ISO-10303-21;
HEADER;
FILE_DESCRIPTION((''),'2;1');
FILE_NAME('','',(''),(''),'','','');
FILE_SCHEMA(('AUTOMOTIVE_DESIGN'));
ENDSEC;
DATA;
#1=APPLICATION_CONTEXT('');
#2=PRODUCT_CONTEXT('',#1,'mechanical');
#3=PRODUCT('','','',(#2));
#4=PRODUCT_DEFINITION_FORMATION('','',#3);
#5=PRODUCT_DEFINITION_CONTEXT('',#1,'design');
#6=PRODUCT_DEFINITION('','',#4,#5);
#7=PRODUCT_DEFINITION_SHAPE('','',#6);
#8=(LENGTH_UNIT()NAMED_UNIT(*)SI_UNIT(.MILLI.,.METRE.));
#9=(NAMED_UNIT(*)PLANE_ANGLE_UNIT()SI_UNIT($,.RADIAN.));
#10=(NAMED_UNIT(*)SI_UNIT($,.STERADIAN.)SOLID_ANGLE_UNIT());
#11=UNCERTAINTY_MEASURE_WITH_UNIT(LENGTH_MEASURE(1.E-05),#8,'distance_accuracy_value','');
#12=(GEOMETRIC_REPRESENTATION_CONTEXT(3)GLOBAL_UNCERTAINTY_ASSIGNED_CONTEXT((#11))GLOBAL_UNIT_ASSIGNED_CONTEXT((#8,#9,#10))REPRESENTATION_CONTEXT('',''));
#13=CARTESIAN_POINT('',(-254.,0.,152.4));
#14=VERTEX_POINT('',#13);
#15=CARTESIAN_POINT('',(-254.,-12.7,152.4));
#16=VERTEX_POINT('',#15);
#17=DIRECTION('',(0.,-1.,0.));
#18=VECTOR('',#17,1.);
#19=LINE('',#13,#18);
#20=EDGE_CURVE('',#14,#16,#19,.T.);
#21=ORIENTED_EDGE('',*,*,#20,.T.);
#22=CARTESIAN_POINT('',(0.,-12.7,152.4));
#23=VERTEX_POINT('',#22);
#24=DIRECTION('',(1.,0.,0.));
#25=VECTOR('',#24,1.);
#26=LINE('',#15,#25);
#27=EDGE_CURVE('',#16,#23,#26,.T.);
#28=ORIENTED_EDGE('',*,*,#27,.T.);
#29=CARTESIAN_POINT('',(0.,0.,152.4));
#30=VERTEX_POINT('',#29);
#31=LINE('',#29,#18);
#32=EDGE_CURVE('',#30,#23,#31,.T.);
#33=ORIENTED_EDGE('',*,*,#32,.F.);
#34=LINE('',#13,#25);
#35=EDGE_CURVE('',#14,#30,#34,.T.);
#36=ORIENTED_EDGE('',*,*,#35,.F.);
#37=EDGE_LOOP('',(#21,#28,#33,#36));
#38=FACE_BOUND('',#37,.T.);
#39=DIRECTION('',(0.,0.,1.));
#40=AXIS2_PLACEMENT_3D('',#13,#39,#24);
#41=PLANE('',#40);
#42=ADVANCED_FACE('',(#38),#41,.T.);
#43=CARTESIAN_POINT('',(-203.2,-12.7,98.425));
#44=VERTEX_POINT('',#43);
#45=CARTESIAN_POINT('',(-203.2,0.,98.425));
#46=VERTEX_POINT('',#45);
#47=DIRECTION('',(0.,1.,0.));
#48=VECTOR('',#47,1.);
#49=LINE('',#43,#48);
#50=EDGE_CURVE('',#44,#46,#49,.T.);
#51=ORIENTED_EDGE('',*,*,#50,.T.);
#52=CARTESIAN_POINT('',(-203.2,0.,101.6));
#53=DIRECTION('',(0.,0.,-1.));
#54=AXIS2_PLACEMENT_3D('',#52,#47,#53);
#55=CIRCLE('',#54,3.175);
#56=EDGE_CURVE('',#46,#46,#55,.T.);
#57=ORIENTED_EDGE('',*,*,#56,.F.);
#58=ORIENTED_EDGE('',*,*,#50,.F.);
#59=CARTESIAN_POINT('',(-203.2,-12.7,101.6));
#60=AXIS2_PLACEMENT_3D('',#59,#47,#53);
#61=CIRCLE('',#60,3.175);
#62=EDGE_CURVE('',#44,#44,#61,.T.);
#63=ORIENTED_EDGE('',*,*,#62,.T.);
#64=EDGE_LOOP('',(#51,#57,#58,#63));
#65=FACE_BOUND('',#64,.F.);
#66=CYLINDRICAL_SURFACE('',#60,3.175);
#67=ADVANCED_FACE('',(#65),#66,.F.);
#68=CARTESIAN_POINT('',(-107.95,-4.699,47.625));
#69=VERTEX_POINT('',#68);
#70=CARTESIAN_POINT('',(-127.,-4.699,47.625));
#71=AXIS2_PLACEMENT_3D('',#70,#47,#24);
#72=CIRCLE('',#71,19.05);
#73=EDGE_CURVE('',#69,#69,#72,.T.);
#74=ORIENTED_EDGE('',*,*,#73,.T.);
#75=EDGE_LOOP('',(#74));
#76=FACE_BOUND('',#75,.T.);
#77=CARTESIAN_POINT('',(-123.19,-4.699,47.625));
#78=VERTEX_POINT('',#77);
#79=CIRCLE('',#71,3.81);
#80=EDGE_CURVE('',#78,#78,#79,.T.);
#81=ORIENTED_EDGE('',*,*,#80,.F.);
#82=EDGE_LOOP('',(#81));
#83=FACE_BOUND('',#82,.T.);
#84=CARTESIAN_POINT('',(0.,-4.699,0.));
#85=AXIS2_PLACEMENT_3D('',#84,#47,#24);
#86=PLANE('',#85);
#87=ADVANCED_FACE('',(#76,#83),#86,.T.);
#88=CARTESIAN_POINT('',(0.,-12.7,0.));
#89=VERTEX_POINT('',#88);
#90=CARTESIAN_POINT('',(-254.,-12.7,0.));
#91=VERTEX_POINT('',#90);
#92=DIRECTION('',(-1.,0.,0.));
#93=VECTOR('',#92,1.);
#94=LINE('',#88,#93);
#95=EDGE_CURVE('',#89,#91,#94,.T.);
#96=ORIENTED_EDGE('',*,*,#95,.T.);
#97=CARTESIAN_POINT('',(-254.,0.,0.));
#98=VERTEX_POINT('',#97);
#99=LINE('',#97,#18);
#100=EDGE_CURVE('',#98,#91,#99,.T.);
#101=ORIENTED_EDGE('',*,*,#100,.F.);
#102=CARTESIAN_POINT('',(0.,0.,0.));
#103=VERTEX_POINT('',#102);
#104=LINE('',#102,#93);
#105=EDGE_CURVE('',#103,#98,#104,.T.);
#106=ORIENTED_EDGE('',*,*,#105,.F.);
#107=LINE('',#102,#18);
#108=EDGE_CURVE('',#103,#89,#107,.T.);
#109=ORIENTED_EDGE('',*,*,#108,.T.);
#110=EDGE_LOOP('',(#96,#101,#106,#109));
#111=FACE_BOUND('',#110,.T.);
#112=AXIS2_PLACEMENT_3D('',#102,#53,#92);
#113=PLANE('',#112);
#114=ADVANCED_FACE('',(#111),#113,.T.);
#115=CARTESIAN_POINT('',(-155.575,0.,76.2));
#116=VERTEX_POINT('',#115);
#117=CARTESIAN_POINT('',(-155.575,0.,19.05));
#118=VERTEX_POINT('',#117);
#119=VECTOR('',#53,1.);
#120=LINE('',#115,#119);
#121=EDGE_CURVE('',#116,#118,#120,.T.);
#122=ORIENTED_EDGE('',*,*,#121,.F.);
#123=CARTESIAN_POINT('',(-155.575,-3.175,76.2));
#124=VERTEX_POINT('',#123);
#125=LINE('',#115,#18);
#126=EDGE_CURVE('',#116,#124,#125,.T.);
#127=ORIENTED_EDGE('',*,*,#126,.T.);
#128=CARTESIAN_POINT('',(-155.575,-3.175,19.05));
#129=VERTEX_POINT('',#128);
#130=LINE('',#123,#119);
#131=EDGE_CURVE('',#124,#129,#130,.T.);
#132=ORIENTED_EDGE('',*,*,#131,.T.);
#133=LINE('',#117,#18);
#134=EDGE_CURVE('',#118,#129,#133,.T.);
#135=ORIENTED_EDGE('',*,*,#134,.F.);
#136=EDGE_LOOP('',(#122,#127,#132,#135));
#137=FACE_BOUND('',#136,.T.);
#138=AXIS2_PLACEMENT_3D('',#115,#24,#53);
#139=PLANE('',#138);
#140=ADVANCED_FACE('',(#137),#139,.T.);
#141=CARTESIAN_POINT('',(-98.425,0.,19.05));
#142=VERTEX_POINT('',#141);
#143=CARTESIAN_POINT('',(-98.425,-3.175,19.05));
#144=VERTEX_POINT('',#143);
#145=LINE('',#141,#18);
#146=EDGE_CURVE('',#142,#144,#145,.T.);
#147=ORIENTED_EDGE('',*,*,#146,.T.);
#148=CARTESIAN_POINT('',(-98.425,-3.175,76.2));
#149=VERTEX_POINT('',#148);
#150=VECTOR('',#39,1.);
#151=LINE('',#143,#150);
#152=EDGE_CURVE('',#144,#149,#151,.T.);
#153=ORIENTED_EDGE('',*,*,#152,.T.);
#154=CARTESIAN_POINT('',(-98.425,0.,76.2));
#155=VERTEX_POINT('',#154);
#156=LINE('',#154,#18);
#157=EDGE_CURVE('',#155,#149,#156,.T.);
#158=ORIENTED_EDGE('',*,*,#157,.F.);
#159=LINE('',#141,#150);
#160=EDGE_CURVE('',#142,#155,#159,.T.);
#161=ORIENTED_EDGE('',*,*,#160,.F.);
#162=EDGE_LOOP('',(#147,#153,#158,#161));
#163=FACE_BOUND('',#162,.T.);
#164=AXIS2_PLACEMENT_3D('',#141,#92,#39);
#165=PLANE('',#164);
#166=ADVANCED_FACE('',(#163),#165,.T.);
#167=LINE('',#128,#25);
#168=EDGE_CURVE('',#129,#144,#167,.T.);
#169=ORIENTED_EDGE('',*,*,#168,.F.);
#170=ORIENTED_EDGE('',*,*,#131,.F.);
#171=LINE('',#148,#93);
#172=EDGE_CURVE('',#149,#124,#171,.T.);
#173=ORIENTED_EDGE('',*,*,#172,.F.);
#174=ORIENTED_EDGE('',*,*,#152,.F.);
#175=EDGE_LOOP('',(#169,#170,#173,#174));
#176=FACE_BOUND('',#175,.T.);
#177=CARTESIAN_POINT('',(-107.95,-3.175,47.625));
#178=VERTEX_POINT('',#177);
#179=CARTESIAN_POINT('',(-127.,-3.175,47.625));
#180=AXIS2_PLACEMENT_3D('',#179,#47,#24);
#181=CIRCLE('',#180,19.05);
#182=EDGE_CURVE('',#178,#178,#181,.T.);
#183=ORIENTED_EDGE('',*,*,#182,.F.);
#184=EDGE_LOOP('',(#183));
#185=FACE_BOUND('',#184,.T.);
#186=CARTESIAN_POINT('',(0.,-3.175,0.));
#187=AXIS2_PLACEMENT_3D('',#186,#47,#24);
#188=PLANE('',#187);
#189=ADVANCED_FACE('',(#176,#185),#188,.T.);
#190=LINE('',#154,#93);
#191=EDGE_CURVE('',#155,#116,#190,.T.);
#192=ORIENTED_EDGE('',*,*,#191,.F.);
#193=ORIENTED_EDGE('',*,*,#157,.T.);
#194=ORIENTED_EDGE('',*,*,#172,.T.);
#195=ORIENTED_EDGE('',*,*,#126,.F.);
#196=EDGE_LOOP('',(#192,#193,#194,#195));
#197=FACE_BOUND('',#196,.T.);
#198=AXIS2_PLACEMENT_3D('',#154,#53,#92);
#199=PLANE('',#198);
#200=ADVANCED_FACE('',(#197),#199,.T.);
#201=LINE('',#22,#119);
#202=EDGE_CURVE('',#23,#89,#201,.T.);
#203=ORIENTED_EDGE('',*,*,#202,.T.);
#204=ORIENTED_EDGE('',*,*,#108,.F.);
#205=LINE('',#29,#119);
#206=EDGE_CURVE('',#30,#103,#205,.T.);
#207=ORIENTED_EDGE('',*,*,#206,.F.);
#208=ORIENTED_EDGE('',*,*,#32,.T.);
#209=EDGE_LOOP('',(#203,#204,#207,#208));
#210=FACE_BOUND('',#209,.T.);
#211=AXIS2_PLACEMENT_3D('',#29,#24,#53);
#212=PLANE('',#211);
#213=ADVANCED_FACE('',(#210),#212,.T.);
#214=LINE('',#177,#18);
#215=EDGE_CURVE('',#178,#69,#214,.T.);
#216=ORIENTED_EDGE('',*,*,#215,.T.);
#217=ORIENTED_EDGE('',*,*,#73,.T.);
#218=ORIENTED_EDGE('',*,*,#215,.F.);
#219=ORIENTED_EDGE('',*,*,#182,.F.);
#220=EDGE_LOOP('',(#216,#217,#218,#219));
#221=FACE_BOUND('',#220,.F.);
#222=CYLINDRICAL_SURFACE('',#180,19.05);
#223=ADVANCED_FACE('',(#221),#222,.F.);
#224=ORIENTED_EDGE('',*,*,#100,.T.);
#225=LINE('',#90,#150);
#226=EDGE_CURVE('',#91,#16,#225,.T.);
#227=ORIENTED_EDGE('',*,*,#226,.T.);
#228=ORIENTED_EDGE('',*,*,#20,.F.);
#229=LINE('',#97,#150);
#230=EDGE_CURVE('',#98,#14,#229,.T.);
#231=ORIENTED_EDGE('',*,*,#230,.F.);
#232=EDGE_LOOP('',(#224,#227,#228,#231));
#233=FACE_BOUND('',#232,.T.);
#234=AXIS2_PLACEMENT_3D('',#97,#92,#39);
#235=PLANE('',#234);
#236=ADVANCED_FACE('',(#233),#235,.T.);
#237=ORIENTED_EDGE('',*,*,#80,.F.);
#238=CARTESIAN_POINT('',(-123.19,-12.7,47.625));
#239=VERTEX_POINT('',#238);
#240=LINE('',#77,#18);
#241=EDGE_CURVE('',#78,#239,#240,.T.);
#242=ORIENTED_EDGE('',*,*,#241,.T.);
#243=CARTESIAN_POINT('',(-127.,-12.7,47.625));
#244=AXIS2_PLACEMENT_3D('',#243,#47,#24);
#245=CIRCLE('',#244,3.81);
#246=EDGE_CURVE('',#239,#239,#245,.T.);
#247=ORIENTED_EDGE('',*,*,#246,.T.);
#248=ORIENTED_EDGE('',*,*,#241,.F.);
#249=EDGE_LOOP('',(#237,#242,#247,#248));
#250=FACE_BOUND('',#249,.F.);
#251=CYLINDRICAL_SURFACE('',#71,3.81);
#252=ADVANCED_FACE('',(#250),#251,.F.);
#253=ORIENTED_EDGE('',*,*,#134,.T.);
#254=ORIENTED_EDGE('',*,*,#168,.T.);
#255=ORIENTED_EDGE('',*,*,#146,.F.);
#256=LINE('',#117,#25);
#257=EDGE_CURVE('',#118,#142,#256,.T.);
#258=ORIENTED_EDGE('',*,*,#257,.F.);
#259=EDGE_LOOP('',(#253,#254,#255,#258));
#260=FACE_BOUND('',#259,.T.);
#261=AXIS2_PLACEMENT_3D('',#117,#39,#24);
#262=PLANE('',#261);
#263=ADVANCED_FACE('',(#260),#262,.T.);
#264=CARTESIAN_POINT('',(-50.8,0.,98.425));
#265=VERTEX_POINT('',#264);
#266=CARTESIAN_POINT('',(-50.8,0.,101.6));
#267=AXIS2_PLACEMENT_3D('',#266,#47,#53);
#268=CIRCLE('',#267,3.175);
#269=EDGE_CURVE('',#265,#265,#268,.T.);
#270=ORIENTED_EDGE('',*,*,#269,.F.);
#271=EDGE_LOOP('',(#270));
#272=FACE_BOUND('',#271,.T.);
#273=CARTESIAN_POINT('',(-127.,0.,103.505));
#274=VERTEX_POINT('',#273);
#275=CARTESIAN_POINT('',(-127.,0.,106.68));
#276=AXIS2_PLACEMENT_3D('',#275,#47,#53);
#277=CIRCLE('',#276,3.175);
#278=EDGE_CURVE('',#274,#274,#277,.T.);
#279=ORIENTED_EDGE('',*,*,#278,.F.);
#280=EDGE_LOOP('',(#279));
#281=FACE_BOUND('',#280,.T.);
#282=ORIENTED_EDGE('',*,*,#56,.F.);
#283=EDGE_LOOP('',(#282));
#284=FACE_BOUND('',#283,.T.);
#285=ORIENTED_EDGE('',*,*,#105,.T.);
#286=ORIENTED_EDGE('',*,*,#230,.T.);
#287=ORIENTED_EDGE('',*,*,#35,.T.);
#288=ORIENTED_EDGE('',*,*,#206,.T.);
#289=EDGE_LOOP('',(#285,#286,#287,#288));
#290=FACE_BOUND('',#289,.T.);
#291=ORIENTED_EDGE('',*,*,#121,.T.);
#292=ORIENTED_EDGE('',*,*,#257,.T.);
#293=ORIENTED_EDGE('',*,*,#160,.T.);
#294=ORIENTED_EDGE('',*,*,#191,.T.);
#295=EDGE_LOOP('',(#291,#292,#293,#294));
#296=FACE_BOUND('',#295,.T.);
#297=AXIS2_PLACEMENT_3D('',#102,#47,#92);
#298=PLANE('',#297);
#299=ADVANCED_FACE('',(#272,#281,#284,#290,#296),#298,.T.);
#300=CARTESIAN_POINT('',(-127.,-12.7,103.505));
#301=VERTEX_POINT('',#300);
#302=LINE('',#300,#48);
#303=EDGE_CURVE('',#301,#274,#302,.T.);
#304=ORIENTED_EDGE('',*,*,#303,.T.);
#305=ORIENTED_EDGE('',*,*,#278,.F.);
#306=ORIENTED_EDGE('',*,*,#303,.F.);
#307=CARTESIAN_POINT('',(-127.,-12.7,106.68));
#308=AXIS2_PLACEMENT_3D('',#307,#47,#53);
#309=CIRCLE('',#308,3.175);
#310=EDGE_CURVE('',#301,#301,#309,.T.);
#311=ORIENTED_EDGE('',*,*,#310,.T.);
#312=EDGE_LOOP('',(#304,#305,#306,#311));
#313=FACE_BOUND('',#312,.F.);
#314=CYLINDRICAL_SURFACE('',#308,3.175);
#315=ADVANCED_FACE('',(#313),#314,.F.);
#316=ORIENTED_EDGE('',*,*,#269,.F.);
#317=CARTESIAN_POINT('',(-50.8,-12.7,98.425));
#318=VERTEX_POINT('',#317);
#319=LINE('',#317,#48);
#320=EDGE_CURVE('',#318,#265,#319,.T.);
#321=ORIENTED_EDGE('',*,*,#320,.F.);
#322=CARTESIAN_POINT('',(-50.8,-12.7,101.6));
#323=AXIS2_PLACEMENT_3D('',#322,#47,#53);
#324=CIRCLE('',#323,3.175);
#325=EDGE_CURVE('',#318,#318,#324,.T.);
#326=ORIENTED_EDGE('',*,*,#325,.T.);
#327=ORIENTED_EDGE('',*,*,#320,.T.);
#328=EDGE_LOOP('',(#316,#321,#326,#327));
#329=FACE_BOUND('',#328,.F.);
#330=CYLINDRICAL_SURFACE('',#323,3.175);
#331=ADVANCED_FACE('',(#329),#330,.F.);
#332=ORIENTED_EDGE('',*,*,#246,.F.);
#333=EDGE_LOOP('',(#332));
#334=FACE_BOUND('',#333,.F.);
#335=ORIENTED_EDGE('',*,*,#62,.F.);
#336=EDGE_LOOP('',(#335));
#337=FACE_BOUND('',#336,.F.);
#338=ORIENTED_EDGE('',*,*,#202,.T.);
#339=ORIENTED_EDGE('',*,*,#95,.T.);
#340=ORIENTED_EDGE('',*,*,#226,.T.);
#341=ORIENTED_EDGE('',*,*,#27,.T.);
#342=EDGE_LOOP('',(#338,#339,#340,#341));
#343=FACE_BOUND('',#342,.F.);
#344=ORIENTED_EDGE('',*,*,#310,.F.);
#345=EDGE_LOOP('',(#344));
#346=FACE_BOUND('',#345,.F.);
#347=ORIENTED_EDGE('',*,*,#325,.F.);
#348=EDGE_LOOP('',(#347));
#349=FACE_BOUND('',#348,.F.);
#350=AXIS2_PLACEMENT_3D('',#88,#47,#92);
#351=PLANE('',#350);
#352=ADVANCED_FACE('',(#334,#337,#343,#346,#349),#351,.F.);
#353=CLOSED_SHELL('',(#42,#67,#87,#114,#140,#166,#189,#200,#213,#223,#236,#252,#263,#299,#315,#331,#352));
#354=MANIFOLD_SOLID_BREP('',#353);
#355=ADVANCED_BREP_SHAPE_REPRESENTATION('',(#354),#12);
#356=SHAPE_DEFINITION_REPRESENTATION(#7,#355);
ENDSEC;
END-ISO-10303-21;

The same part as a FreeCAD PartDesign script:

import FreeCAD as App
import Part
import Sketcher
from FreeCAD import Vector
Q = App.Units.Quantity


def add_polygon(sketch, points):
    """Adds a closed chain of lines whose ends are joined by coincident constraints."""
    first, n = sketch.GeometryCount, len(points)
    for a, b in zip(points, points[1:] + points[:1]):
        sketch.addGeometry(Part.LineSegment(App.Vector(*a, 0), App.Vector(*b, 0)), False)
    for i in range(n):
        sketch.addConstraint(Sketcher.Constraint("Coincident", first + i, 2, first + (i + 1) % n, 1))

doc = App.newDocument("Part")
body = doc.addObject("PartDesign::Body", "Body")

sketch1 = body.newObject("Sketcher::SketchObject", "Sketch")
sketch1.AttachmentSupport = (doc.getObject("XZ_Plane"), [""])
sketch1.MapMode = "FlatFace"
add_polygon(sketch1, [(0, 152), (0, 0), (-254, 0), (-254, 152)])
sketch1.addConstraint(Sketcher.Constraint("Vertical", 0))
sketch1.addConstraint(Sketcher.Constraint("Horizontal", 1))
sketch1.addConstraint(Sketcher.Constraint("Vertical", 2))
sketch1.addConstraint(Sketcher.Constraint("Horizontal", 3))
sketch1.addConstraint(Sketcher.Constraint("Coincident", 0, 2, -1, 1))
sketch1.addConstraint(Sketcher.Constraint("DistanceX", 1, 2, 1, 1, Q("10 in")))
sketch1.addConstraint(Sketcher.Constraint("DistanceY", 0, 2, 0, 1, Q("6 in")))
pad1 = body.newObject("PartDesign::Pad", "Pad")
pad1.Profile = sketch1
pad1.Length = Q("0.5 in")

sketch2 = body.newObject("Sketcher::SketchObject", "Sketch001")
sketch2.AttachmentSupport = (doc.getObject("XZ_Plane"), [""])
sketch2.MapMode = "FlatFace"
add_polygon(sketch2, [(-98, 19), (-156, 19), (-156, 76), (-98, 76)])
sketch2.addConstraint(Sketcher.Constraint("Horizontal", 0))
sketch2.addConstraint(Sketcher.Constraint("Vertical", 1))
sketch2.addConstraint(Sketcher.Constraint("Horizontal", 2))
sketch2.addConstraint(Sketcher.Constraint("Vertical", 3))
sketch2.addConstraint(Sketcher.Constraint("Equal", 2, 1))
sketch2.addConstraint(Sketcher.Constraint("DistanceX", 0, 2, 0, 1, Q("2.25 in")))
sketch2.addConstraint(Sketcher.Constraint("DistanceY", -1, 1, 0, 2, Q("0.75 in")))
sketch2.addConstraint(Sketcher.Constraint("DistanceX", 2, 2, -1, 1, Q("3.875 in")))
pocket1 = body.newObject("PartDesign::Pocket", "Pocket")
pocket1.Profile = sketch2
pocket1.Length = Q("0.125 in")
pocket1.Reversed = True

sketch3 = body.newObject("Sketcher::SketchObject", "Sketch002")
sketch3.AttachmentSupport = (doc.getObject("XZ_Plane"), [""])
sketch3.MapMode = "FlatFace"
sketch3.AttachmentOffset = App.Placement(Vector(0, 0, 0.125 * 25.4), App.Rotation())
sketch3.addGeometry(Part.Circle(Vector(-127, 48, 0), Vector(0, 0, 1), 19), False)
sketch3.addConstraint(Sketcher.Constraint("Diameter", 0, Q("1.5 in")))
sketch3.addConstraint(Sketcher.Constraint("DistanceX", 0, 3, -1, 1, Q("5 in")))
sketch3.addConstraint(Sketcher.Constraint("DistanceY", -1, 1, 0, 3, Q("1.875 in")))
pocket2 = body.newObject("PartDesign::Pocket", "Pocket001")
pocket2.Profile = sketch3
pocket2.Length = Q("0.06 in")
pocket2.Reversed = True

sketch4 = body.newObject("Sketcher::SketchObject", "Sketch003")
sketch4.AttachmentSupport = (doc.getObject("XZ_Plane"), [""])
sketch4.MapMode = "FlatFace"
sketch4.AttachmentOffset = App.Placement(Vector(0, 0, 0.185 * 25.4), App.Rotation())
sketch4.addGeometry(Part.Circle(Vector(-127, 47.6, 0), Vector(0, 0, 1), 3.8), False)
sketch4.addConstraint(Sketcher.Constraint("Diameter", 0, Q("0.3 in")))
sketch4.addConstraint(Sketcher.Constraint("DistanceX", 0, 3, -1, 1, Q("5 in")))
sketch4.addConstraint(Sketcher.Constraint("DistanceY", -1, 1, 0, 3, Q("1.875 in")))
pocket3 = body.newObject("PartDesign::Pocket", "Pocket002")
pocket3.Profile = sketch4
pocket3.Type = "ThroughAll"
pocket3.Reversed = True

sketch5 = body.newObject("Sketcher::SketchObject", "Sketch004")
sketch5.AttachmentSupport = (doc.getObject("XZ_Plane"), [""])
sketch5.MapMode = "FlatFace"
sketch5.AttachmentOffset = App.Placement(Vector(0, 0, 0.5 * 25.4), App.Rotation())
sketch5.addGeometry(Part.Circle(Vector(-50.8, 101.6, 0), Vector(0, 0, 1), 3.2), False)
sketch5.addGeometry(Part.Circle(Vector(-203.2, 101.6, 0), Vector(0, 0, 1), 3.2), False)
sketch5.addGeometry(Part.Circle(Vector(-127, 106.7, 0), Vector(0, 0, 1), 3.2), False)
sketch5.addConstraint(Sketcher.Constraint("Equal", 0, 1))
sketch5.addConstraint(Sketcher.Constraint("Equal", 1, 2))
sketch5.addConstraint(Sketcher.Constraint("Horizontal", 0, 3, 1, 3))
sketch5.addConstraint(Sketcher.Constraint("Diameter", 0, Q("0.25 in")))
sketch5.addConstraint(Sketcher.Constraint("DistanceX", 0, 3, -1, 1, Q("2 in")))
sketch5.addConstraint(Sketcher.Constraint("DistanceY", -1, 1, 0, 3, Q("4 in")))
sketch5.addConstraint(Sketcher.Constraint("DistanceX", 1, 3, -1, 1, Q("8 in")))
sketch5.addConstraint(Sketcher.Constraint("DistanceX", 2, 3, -1, 1, Q("5 in")))
sketch5.addConstraint(Sketcher.Constraint("DistanceY", -1, 1, 2, 3, Q("4.2 in")))
doc.recompute()
hole = body.newObject("PartDesign::Hole", "Hole")
hole.Profile = sketch5
hole.ThreadType = "None"
hole.Diameter = Q("0.25 in")
hole.DepthType = "ThroughAll"

doc.recompute()
